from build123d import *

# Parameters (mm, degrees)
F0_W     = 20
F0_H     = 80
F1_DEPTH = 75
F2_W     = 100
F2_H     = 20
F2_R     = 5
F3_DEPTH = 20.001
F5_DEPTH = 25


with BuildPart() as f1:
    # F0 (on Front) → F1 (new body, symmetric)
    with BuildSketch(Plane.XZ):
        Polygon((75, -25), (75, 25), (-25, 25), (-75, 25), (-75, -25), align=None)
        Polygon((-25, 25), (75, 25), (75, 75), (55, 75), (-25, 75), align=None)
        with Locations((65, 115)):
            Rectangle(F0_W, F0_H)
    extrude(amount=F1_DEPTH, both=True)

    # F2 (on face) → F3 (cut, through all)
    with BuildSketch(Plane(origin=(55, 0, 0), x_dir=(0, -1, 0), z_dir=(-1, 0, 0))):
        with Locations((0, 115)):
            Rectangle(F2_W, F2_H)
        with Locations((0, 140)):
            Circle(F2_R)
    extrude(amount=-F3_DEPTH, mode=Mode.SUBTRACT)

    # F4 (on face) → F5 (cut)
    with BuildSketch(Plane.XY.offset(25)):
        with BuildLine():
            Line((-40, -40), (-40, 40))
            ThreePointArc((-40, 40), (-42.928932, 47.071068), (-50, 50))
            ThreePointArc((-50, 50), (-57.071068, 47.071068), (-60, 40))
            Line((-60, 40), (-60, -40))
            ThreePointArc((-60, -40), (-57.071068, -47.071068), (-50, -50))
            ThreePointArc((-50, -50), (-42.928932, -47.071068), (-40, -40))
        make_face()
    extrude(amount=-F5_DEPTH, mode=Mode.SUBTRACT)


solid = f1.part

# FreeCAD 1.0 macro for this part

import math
import FreeCAD as App
import Part
import Sketcher

V = App.Vector

doc = App.newDocument("Part")
params = doc.addObject("Spreadsheet::Sheet", "Params")
for row, (alias, value) in enumerate([
    ("sketch1_width", "20 mm"),
    ("sketch1_width2", "80 mm"),
    ("sketch1_width3", "50 mm"),
    ("pad1_length", "150 mm"),
    ("sketch2_diameter", "10 mm"),
    ("sketch2_width", "100 mm"),
    ("sketch2_height", "20 mm"),
    ("sketch3_radius", "9.999999 mm"),
    ("sketch3_height", "80 mm"),
    ("pocket2_length", "25 mm"),
], start=1):
    params.set(f"A{row}", alias)
    params.set(f"B{row}", "=" + value)
    params.setAlias(f"B{row}", alias)

body = doc.addObject("PartDesign::Body", "Body")

sketch1 = doc.addObject("Sketcher::SketchObject", "Sketch")
body.addObject(sketch1)
sketch1.AttachmentSupport = (doc.XZ_Plane, [""])
sketch1.MapMode = "FlatFace"
sketch1.addGeometry(Part.LineSegment(V(75, -25, 0), V(75, 155, 0)), False)
sketch1.addGeometry(Part.LineSegment(V(75, 155, 0), V(55, 155, 0)), False)
sketch1.addGeometry(Part.LineSegment(V(55, 155, 0), V(55, 75, 0)), False)
sketch1.addGeometry(Part.LineSegment(V(55, 75, 0), V(-25, 75, 0)), False)
sketch1.addGeometry(Part.LineSegment(V(-25, 75, 0), V(-25, 25, 0)), False)
sketch1.addGeometry(Part.LineSegment(V(-25, 25, 0), V(-75, 25, 0)), False)
sketch1.addGeometry(Part.LineSegment(V(-75, 25, 0), V(-75, -25, 0)), False)
sketch1.addGeometry(Part.LineSegment(V(-75, -25, 0), V(75, -25, 0)), False)
sketch1.addConstraint(Sketcher.Constraint("Coincident", 0, 2, 1, 1))
sketch1.addConstraint(Sketcher.Constraint("Coincident", 1, 2, 2, 1))
sketch1.addConstraint(Sketcher.Constraint("Coincident", 2, 2, 3, 1))
sketch1.addConstraint(Sketcher.Constraint("Coincident", 3, 2, 4, 1))
sketch1.addConstraint(Sketcher.Constraint("Coincident", 4, 2, 5, 1))
sketch1.addConstraint(Sketcher.Constraint("Coincident", 5, 2, 6, 1))
sketch1.addConstraint(Sketcher.Constraint("Coincident", 6, 2, 7, 1))
sketch1.addConstraint(Sketcher.Constraint("Coincident", 7, 2, 0, 1))
sketch1.addConstraint(Sketcher.Constraint("Vertical", 0))
sketch1.addConstraint(Sketcher.Constraint("Horizontal", 1))
sketch1.addConstraint(Sketcher.Constraint("Vertical", 2))
sketch1.addConstraint(Sketcher.Constraint("Horizontal", 3))
sketch1.addConstraint(Sketcher.Constraint("Vertical", 4))
sketch1.addConstraint(Sketcher.Constraint("Horizontal", 5))
sketch1.addConstraint(Sketcher.Constraint("Vertical", 6))
sketch1.addConstraint(Sketcher.Constraint("Horizontal", 7))
sketch1.addConstraint(Sketcher.Constraint("Symmetric", 5, 2, 7, 2, -1, 1))
sketch1.addConstraint(Sketcher.Constraint("Equal", 3, 2))
sketch1.addConstraint(Sketcher.Constraint("Equal", 5, 4))
sketch1.addConstraint(Sketcher.Constraint("Equal", 4, 6))
sketch1.addConstraint(Sketcher.Constraint("DistanceX", 1, 2, 1, 1, 20.0))
sketch1.addConstraint(Sketcher.Constraint("DistanceX", 3, 2, 3, 1, 80.0))
sketch1.addConstraint(Sketcher.Constraint("DistanceX", 5, 2, 5, 1, 50.0))
sketch1.setExpression("Constraints[20]", "Params.sketch1_width")
sketch1.setExpression("Constraints[21]", "Params.sketch1_width2")
sketch1.setExpression("Constraints[22]", "Params.sketch1_width3")
pad1 = doc.addObject("PartDesign::Pad", "Pad")
body.addObject(pad1)
pad1.Profile = sketch1
pad1.setExpression("Length", "Params.pad1_length")
pad1.Midplane = True

sketch2 = doc.addObject("Sketcher::SketchObject", "Sketch001")
body.addObject(sketch2)
sketch2.AttachmentSupport = (doc.YZ_Plane, [""])
sketch2.MapMode = "FlatFace"
sketch2.AttachmentOffset = App.Placement(V(0, 0, 55), App.Rotation())
sketch2.addGeometry(Part.LineSegment(V(50, 125, 0), V(50, 105, 0)), False)
sketch2.addGeometry(Part.LineSegment(V(50, 105, 0), V(-50, 105, 0)), False)
sketch2.addGeometry(Part.LineSegment(V(-50, 105, 0), V(-50, 125, 0)), False)
sketch2.addGeometry(Part.LineSegment(V(-50, 125, 0), V(50, 125, 0)), False)
sketch2.addGeometry(Part.Circle(V(0, 140, 0), V(0, 0, 1), 5), False)
sketch2.addConstraint(Sketcher.Constraint("Coincident", 0, 2, 1, 1))
sketch2.addConstraint(Sketcher.Constraint("Coincident", 1, 2, 2, 1))
sketch2.addConstraint(Sketcher.Constraint("Coincident", 2, 2, 3, 1))
sketch2.addConstraint(Sketcher.Constraint("Coincident", 3, 2, 0, 1))
sketch2.addConstraint(Sketcher.Constraint("Vertical", 0))
sketch2.addConstraint(Sketcher.Constraint("Horizontal", 1))
sketch2.addConstraint(Sketcher.Constraint("Vertical", 2))
sketch2.addConstraint(Sketcher.Constraint("Horizontal", 3))
sketch2.addConstraint(Sketcher.Constraint("PointOnObject", 4, 3, -2))
sketch2.addConstraint(Sketcher.Constraint("Diameter", 4, 10.0))
sketch2.addConstraint(Sketcher.Constraint("DistanceX", 1, 2, 1, 1, 100.0))
sketch2.addConstraint(Sketcher.Constraint("DistanceY", 0, 2, 0, 1, 20.0))
sketch2.addConstraint(Sketcher.Constraint("DistanceY", -1, 1, 4, 3, 140.0))
sketch2.addConstraint(Sketcher.Constraint("DistanceX", -1, 1, 0, 2, 50.0))
sketch2.addConstraint(Sketcher.Constraint("DistanceY", -1, 1, 0, 2, 105.0))
sketch2.setExpression("Constraints[9]", "Params.sketch2_diameter")
sketch2.setExpression("Constraints[10]", "Params.sketch2_width")
sketch2.setExpression("Constraints[11]", "Params.sketch2_height")
pocket1 = doc.addObject("PartDesign::Pocket", "Pocket")
body.addObject(pocket1)
pocket1.Profile = sketch2
pocket1.Type = "ThroughAll"
pocket1.Reversed = True

sketch3 = doc.addObject("Sketcher::SketchObject", "Sketch002")
body.addObject(sketch3)
sketch3.AttachmentSupport = (doc.XY_Plane, [""])
sketch3.MapMode = "FlatFace"
sketch3.AttachmentOffset = App.Placement(V(0, 0, 25), App.Rotation())
sketch3.addGeometry(Part.LineSegment(V(-40, -40, 0), V(-40, 40, 0)), False)
sketch3.addGeometry(Part.ArcOfCircle(Part.Circle(V(-50, 40, 0), V(0, 0, 1), 10), math.radians(0), math.radians(90)), False)
sketch3.addGeometry(Part.ArcOfCircle(Part.Circle(V(-50, 40, 0), V(0, 0, 1), 10), math.radians(90), math.radians(180)), False)
sketch3.addGeometry(Part.LineSegment(V(-60, 40, 0), V(-60, -40, 0)), False)
sketch3.addGeometry(Part.ArcOfCircle(Part.Circle(V(-50, -40, 0), V(0, 0, 1), 10), math.radians(180), math.radians(270)), False)
sketch3.addGeometry(Part.ArcOfCircle(Part.Circle(V(-50, -40, 0), V(0, 0, 1), 10), math.radians(-90), math.radians(0)), False)
sketch3.addConstraint(Sketcher.Constraint("Tangent", 0, 2, 1, 1))
sketch3.addConstraint(Sketcher.Constraint("Tangent", 1, 2, 2, 1))
sketch3.addConstraint(Sketcher.Constraint("Tangent", 2, 2, 3, 1))
sketch3.addConstraint(Sketcher.Constraint("Tangent", 3, 2, 4, 1))
sketch3.addConstraint(Sketcher.Constraint("Tangent", 4, 2, 5, 1))
sketch3.addConstraint(Sketcher.Constraint("Tangent", 5, 2, 0, 1))
sketch3.addConstraint(Sketcher.Constraint("Vertical", 0))
sketch3.addConstraint(Sketcher.Constraint("Vertical", 3))
sketch3.addConstraint(Sketcher.Constraint("Equal", 1, 2))
sketch3.addConstraint(Sketcher.Constraint("Equal", 2, 4))
sketch3.addConstraint(Sketcher.Constraint("Symmetric", 1, 2, 4, 2, -1))
sketch3.addConstraint(Sketcher.Constraint("Vertical", 5, 3, 1, 2))
sketch3.addConstraint(Sketcher.Constraint("Radius", 1, 9.999999))
sketch3.addConstraint(Sketcher.Constraint("DistanceY", 0, 1, 0, 2, 80.0))
sketch3.addConstraint(Sketcher.Constraint("DistanceX", 1, 3, -1, 1, 49.999999))
sketch3.setExpression("Constraints[12]", "Params.sketch3_radius")
sketch3.setExpression("Constraints[13]", "Params.sketch3_height")
pocket2 = doc.addObject("PartDesign::Pocket", "Pocket001")
body.addObject(pocket2)
pocket2.Profile = sketch3
pocket2.setExpression("Length", "Params.pocket2_length")

doc.recompute()
